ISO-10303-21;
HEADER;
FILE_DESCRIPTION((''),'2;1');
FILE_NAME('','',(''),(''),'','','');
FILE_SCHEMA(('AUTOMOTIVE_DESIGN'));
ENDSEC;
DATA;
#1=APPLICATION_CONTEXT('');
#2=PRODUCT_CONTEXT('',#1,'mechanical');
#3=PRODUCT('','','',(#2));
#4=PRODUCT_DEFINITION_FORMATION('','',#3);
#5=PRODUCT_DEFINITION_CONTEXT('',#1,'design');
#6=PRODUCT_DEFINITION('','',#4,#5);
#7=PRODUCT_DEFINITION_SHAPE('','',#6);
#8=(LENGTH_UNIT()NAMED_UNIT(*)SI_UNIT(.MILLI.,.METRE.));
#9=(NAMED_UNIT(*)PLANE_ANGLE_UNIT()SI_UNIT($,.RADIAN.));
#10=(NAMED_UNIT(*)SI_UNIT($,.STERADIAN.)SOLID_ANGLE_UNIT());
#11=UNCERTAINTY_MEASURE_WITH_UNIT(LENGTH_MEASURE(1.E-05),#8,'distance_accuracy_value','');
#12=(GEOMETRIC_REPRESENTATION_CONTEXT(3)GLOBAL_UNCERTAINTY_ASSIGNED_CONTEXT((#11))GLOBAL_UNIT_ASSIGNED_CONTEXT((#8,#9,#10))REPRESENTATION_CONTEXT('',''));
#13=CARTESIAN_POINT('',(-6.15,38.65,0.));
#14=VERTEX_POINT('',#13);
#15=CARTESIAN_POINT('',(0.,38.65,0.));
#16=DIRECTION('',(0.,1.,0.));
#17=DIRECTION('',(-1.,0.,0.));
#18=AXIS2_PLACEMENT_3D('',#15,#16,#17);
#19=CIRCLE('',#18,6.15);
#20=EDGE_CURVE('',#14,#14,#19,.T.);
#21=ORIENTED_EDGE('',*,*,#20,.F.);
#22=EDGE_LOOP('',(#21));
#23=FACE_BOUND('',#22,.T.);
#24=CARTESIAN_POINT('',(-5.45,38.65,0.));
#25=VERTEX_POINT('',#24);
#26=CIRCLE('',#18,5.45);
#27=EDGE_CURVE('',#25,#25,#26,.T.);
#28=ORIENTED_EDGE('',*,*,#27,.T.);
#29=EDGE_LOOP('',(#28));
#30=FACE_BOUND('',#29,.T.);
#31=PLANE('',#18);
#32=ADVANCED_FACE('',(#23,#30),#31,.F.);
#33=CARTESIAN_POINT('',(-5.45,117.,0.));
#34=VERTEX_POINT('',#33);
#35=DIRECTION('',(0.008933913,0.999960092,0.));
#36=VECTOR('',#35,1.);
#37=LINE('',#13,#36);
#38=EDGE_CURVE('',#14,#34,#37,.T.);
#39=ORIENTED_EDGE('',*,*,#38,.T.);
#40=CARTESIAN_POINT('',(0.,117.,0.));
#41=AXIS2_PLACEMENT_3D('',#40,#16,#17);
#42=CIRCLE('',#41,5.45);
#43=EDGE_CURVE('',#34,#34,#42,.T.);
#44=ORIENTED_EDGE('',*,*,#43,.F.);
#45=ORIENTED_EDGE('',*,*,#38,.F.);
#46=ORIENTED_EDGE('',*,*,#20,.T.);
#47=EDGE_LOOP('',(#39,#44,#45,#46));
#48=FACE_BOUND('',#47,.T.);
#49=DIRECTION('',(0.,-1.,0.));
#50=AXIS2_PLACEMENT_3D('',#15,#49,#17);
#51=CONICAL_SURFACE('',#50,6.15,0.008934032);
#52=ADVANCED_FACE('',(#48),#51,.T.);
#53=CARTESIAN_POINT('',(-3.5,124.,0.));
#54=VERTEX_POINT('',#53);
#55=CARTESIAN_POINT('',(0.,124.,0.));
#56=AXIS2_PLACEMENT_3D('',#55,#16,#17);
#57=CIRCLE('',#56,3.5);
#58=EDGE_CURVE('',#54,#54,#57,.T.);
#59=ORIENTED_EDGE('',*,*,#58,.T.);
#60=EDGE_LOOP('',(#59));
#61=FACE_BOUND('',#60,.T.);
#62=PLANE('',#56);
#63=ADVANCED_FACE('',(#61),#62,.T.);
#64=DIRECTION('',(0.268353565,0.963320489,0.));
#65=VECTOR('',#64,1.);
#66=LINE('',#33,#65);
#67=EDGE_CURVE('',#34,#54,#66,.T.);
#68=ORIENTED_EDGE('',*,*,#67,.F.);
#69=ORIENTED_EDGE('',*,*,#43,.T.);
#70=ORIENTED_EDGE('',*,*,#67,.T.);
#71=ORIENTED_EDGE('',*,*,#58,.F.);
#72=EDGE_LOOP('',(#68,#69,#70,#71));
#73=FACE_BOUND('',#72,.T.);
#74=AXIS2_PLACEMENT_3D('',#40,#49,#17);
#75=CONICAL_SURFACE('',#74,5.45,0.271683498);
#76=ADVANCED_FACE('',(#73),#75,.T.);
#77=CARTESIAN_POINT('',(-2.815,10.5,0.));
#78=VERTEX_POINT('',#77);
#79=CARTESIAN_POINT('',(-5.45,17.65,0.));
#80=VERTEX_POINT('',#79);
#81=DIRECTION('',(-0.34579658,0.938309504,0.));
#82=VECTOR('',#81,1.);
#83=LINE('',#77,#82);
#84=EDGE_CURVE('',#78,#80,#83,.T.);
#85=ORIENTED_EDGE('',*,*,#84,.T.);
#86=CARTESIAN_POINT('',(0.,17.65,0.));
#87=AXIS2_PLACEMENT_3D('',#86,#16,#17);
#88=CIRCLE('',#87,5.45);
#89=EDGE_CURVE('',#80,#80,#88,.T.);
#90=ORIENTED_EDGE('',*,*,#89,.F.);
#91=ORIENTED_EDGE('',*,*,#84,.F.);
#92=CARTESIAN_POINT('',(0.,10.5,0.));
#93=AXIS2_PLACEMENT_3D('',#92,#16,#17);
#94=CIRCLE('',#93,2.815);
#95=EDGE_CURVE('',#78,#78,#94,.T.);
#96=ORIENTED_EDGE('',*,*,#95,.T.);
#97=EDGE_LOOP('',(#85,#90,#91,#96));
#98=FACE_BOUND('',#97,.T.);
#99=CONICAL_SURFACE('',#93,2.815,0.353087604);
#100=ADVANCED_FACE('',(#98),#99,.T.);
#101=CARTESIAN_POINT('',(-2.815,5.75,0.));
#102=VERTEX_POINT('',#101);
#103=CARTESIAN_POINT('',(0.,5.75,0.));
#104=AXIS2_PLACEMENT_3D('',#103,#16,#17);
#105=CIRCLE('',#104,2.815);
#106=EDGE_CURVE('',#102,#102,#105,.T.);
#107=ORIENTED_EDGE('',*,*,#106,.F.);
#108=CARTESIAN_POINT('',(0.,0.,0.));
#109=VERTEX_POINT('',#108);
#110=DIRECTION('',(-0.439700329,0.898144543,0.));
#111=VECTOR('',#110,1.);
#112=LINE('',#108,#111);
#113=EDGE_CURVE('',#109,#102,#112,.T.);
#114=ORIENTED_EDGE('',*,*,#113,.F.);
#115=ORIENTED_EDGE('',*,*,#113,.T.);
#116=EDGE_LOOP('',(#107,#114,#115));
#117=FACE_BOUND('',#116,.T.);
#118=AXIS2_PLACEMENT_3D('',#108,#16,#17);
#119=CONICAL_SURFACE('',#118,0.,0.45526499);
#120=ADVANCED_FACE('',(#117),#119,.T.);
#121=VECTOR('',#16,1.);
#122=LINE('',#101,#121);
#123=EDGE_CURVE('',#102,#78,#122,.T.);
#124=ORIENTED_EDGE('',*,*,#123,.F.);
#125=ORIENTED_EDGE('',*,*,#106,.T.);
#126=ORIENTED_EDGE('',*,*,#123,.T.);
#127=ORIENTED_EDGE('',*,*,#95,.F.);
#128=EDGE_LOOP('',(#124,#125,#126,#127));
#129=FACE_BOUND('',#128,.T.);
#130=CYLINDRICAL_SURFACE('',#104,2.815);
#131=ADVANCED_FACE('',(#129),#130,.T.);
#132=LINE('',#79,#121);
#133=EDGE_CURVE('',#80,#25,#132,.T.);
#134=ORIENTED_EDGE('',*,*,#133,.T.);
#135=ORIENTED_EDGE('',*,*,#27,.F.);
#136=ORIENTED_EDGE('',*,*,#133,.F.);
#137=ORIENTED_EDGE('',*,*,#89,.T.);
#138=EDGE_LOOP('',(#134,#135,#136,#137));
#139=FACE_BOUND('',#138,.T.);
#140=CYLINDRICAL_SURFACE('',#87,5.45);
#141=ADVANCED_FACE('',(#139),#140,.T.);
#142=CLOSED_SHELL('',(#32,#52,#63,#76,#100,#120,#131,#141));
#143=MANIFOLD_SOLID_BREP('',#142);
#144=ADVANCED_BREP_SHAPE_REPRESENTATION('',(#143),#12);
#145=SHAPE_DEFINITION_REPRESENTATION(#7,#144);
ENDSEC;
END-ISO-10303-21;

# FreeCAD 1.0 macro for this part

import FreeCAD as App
import Part
import Sketcher
Q = App.Units.Quantity

doc = App.newDocument("Part")
params = doc.addObject("Spreadsheet::Sheet", "Params")
for row, (alias, value) in enumerate([
    ("sketch1_height", "21 mm"),
    ("sketch1_height2", "124 mm"),
    ("sketch1_width", "3.5 mm"),
    ("sketch1_width2", "0.7 mm"),
    ("sketch1_height3", "4.75 mm"),
    ("revolution_angle", "360 deg"),
], start=1):
    params.set(f"A{row}", alias)
    params.set(f"B{row}", "=" + value)
    params.setAlias(f"B{row}", alias)

body = doc.addObject("PartDesign::Body", "Body")

# Sketch on XY plane
sketch1 = body.newObject("Sketcher::SketchObject", "Sketch")
sketch1.AttachmentSupport = (doc.getObject("XY_Plane"), [""])
sketch1.MapMode = "FlatFace"
sketch1.addGeometry(Part.LineSegment(App.Vector(0, 124, 0), App.Vector(-3.5, 124, 0)), False)
sketch1.addGeometry(Part.LineSegment(App.Vector(-3.5, 124, 0), App.Vector(-5.5, 117, 0)), False)
sketch1.addGeometry(Part.LineSegment(App.Vector(-5.5, 117, 0), App.Vector(-6.2, 38.6, 0)), False)
sketch1.addGeometry(Part.LineSegment(App.Vector(-6.2, 38.6, 0), App.Vector(-5.5, 38.6, 0)), False)
sketch1.addGeometry(Part.LineSegment(App.Vector(-5.5, 38.6, 0), App.Vector(-5.5, 17.6, 0)), False)
sketch1.addGeometry(Part.LineSegment(App.Vector(-5.5, 17.6, 0), App.Vector(-2.8, 10.5, 0)), False)
sketch1.addGeometry(Part.LineSegment(App.Vector(-2.8, 10.5, 0), App.Vector(-2.8, 5.8, 0)), False)
sketch1.addGeometry(Part.LineSegment(App.Vector(-2.8, 5.8, 0), App.Vector(0, 0, 0)), False)
sketch1.addGeometry(Part.LineSegment(App.Vector(0, 0, 0), App.Vector(0, 124, 0)), False)
sketch1.addConstraint(Sketcher.Constraint("Coincident", 0, 2, 1, 1))
sketch1.addConstraint(Sketcher.Constraint("Coincident", 1, 2, 2, 1))
sketch1.addConstraint(Sketcher.Constraint("Coincident", 2, 2, 3, 1))
sketch1.addConstraint(Sketcher.Constraint("Coincident", 3, 2, 4, 1))
sketch1.addConstraint(Sketcher.Constraint("Coincident", 4, 2, 5, 1))
sketch1.addConstraint(Sketcher.Constraint("Coincident", 5, 2, 6, 1))
sketch1.addConstraint(Sketcher.Constraint("Coincident", 6, 2, 7, 1))
sketch1.addConstraint(Sketcher.Constraint("Coincident", 7, 2, 8, 1))
sketch1.addConstraint(Sketcher.Constraint("Coincident", 8, 2, 0, 1))
sketch1.addConstraint(Sketcher.Constraint("Horizontal", 0))
sketch1.addConstraint(Sketcher.Constraint("Horizontal", 3))
sketch1.addConstraint(Sketcher.Constraint("Vertical", 4))
sketch1.addConstraint(Sketcher.Constraint("Vertical", 6))
sketch1.addConstraint(Sketcher.Constraint("Vertical", 8))
sketch1.addConstraint(Sketcher.Constraint("Coincident", 7, 2, -1, 1))
sketch1.addConstraint(Sketcher.Constraint("Vertical", 1, 2, 3, 2))
sketch1.addConstraint(Sketcher.Constraint("DistanceY", 4, 2, 4, 1, Q("21 mm")))
sketch1.addConstraint(Sketcher.Constraint("DistanceY", 8, 1, 8, 2, Q("124 mm")))
sketch1.addConstraint(Sketcher.Constraint("DistanceX", 0, 2, 0, 1, Q("3.5 mm")))
sketch1.addConstraint(Sketcher.Constraint("DistanceX", 3, 1, 3, 2, Q("0.7 mm")))
sketch1.addConstraint(Sketcher.Constraint("DistanceY", -1, 1, 1, 2, Q("117 mm")))
sketch1.addConstraint(Sketcher.Constraint("DistanceY", 6, 2, 6, 1, Q("4.75 mm")))
sketch1.addConstraint(Sketcher.Constraint("DistanceY", -1, 1, 5, 2, Q("10.5 mm")))
sketch1.addConstraint(Sketcher.Constraint("DistanceY", 6, 2, 4, 2, Q("11.9 mm")))
sketch1.addConstraint(Sketcher.Constraint("DistanceX", 1, 2, -1, 1, Q("5.45 mm")))
sketch1.addConstraint(Sketcher.Constraint("DistanceX", 5, 2, -1, 1, Q("2.815 mm")))
sketch1.setExpression("Constraints[16]", "Params.sketch1_height")
sketch1.setExpression("Constraints[17]", "Params.sketch1_height2")
sketch1.setExpression("Constraints[18]", "Params.sketch1_width")
sketch1.setExpression("Constraints[19]", "Params.sketch1_width2")
sketch1.setExpression("Constraints[21]", "Params.sketch1_height3")
revolution = body.newObject("PartDesign::Revolution", "Revolution")
revolution.Profile = sketch1
revolution.ReferenceAxis = (sketch1, ["V_Axis"])
revolution.setExpression("Angle", "Params.revolution_angle")

doc.recompute()
